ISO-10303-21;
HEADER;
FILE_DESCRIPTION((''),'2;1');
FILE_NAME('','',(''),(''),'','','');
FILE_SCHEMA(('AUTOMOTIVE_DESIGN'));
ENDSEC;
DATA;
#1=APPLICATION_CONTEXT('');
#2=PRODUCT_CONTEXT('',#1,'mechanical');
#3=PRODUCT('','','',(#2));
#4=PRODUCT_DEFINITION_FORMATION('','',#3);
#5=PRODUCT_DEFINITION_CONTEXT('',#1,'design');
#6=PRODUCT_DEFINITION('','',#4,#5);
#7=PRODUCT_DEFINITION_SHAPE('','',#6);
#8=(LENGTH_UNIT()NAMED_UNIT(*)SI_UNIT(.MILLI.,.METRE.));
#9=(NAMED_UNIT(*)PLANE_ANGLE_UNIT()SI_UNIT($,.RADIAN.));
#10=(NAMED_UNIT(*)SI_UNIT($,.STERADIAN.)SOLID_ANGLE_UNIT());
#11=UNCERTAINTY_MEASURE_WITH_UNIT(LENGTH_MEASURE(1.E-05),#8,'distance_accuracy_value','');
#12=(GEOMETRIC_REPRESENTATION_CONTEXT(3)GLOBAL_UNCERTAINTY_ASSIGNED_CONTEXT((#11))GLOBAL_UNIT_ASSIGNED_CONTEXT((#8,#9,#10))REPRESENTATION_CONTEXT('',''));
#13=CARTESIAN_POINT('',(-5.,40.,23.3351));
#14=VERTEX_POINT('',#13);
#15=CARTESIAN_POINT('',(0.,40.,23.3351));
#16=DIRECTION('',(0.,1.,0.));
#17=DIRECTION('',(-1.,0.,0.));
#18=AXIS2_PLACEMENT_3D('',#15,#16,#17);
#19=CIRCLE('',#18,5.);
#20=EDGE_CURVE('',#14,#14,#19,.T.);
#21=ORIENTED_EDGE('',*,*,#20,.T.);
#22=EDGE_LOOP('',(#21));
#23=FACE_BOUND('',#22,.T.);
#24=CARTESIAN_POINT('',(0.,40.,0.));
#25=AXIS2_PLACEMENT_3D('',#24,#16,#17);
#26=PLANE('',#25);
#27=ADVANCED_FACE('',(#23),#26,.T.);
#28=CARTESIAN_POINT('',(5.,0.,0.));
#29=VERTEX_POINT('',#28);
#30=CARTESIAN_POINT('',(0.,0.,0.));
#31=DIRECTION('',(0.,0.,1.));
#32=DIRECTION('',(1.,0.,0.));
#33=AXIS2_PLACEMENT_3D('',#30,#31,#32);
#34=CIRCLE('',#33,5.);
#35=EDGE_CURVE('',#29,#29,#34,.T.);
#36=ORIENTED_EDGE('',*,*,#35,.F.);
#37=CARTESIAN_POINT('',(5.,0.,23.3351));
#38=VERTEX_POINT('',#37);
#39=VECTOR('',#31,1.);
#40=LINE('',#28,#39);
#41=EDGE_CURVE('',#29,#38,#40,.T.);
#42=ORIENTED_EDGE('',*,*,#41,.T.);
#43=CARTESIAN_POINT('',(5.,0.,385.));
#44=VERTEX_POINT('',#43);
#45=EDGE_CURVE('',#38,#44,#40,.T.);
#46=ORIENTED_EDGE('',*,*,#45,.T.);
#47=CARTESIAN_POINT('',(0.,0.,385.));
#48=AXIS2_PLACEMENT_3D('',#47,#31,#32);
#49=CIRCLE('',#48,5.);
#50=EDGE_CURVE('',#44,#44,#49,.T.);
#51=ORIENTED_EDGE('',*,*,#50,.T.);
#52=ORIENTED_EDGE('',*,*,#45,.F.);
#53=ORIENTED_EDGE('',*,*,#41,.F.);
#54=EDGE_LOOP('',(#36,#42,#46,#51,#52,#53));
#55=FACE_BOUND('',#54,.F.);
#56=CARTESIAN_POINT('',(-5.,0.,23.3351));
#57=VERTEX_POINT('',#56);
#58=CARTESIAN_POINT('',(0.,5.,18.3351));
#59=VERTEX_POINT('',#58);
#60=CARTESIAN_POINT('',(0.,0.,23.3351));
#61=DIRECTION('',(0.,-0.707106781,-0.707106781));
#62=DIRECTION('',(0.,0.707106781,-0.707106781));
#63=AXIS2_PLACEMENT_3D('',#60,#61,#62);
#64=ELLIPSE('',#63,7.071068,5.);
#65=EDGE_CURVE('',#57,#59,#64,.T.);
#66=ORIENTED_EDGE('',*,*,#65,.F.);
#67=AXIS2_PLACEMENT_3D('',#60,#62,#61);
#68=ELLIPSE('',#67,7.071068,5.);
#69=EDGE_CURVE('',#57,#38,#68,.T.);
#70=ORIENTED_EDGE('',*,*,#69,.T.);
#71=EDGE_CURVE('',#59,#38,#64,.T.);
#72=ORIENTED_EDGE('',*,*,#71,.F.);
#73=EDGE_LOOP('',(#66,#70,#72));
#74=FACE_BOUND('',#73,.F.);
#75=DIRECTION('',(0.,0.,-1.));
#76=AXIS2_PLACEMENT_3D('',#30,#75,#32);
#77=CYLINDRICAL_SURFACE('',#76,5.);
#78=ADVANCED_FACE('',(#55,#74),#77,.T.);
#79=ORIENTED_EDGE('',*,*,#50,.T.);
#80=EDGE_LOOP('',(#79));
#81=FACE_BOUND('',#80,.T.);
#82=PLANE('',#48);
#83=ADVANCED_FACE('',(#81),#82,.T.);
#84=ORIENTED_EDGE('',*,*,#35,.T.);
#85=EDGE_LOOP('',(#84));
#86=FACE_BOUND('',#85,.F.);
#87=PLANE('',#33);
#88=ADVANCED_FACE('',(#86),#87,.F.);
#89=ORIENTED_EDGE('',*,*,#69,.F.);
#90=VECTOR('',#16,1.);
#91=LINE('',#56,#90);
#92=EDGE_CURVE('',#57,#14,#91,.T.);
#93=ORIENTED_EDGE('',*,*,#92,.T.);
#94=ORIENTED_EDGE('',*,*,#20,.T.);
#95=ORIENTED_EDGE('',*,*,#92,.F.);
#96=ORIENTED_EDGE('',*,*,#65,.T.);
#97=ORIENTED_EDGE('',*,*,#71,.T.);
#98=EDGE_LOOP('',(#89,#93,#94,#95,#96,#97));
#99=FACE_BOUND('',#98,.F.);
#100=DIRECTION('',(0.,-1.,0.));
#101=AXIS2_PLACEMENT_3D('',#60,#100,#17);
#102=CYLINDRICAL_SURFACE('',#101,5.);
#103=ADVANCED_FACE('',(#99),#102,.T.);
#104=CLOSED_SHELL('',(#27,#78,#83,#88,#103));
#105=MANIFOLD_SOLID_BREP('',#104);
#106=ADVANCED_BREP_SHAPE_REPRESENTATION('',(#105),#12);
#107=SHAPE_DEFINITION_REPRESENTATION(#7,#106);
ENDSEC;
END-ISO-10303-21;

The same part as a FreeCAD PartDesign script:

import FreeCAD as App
import Part
import Sketcher
from FreeCAD import Vector

doc = App.newDocument("Part")
body = doc.addObject("PartDesign::Body", "Body")

sketch1 = body.newObject("Sketcher::SketchObject", "Sketch")
sketch1.AttachmentSupport = (doc.getObject("XY_Plane"), [""])
sketch1.MapMode = "FlatFace"
sketch1.addGeometry(Part.Circle(Vector(0, 0, 0), Vector(0, 0, 1), 5), False)
sketch1.addConstraint([
    Sketcher.Constraint("Coincident", 0, 3, -1, 1),
    Sketcher.Constraint("Diameter", 0, 10.0),
])
pad1 = body.newObject("PartDesign::Pad", "Pad")
pad1.Profile = sketch1
pad1.Length = 385

sketch2 = body.newObject("Sketcher::SketchObject", "Sketch001")
sketch2.AttachmentSupport = (doc.getObject("XZ_Plane"), [""])
sketch2.MapMode = "FlatFace"
sketch2.addGeometry(Part.Circle(Vector(0, 23, 0), Vector(0, 0, 1), 5), False)
sketch2.addConstraint([
    Sketcher.Constraint("PointOnObject", 0, 3, -2),
    Sketcher.Constraint("Diameter", 0, 10.0),
    Sketcher.Constraint("DistanceY", -1, 1, 0, 3, 23.335),
])
pad2 = body.newObject("PartDesign::Pad", "Pad001")
pad2.Profile = sketch2
pad2.Length = 40
pad2.Reversed = True

doc.recompute()
